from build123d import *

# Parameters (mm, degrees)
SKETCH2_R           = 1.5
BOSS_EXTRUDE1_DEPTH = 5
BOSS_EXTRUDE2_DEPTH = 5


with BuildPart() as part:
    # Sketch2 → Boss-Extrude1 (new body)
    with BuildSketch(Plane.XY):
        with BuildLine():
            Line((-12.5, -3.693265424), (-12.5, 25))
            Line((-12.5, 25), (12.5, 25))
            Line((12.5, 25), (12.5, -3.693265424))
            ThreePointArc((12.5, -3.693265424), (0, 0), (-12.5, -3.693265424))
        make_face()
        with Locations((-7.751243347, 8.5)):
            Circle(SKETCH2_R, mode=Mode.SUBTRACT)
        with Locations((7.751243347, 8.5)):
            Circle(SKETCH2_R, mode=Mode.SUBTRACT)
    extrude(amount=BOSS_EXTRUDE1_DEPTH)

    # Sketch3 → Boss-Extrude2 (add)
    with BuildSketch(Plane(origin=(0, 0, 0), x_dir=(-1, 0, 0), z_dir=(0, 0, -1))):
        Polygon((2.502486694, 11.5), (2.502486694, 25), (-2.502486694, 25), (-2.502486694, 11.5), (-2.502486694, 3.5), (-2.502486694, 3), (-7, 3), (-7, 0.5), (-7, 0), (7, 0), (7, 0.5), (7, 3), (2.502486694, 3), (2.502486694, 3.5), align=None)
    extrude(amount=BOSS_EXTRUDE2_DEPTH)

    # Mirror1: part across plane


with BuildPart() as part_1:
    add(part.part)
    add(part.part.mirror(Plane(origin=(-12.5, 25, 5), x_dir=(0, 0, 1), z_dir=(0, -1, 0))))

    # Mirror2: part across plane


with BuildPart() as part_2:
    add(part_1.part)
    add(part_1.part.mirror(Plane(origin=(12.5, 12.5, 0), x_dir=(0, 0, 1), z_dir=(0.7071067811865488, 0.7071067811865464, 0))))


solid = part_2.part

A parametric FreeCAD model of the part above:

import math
import FreeCAD as App
import Part
import Sketcher
from FreeCAD import Vector
Q = App.Units.Quantity


def add_polygon(sketch, points):
    """Adds a closed chain of lines whose ends are joined by coincident constraints."""
    first, n = sketch.GeometryCount, len(points)
    for a, b in zip(points, points[1:] + points[:1]):
        sketch.addGeometry(Part.LineSegment(App.Vector(*a, 0), App.Vector(*b, 0)), False)
    for i in range(n):
        sketch.addConstraint(Sketcher.Constraint("Coincident", first + i, 2, first + (i + 1) % n, 1))

doc = App.newDocument("Part")
params = doc.addObject("Spreadsheet::Sheet", "Params")
for row, (alias, value) in enumerate([
    ("sketch1_diameter", "3 mm"),
    ("sketch1_radius", "23 mm"),
    ("sketch1_width", "25 mm"),
    ("pad1_length", "5 mm"),
    ("sketch2_width", "14 mm"),
    ("sketch2_height", "22 mm"),
    ("sketch2_height2", "3 mm"),
    ("pad2_length", "5 mm"),
], start=1):
    params.set(f"A{row}", alias)
    params.set(f"B{row}", "=" + value)
    params.setAlias(f"B{row}", alias)

body = doc.addObject("PartDesign::Body", "Body")

# Sketch on XY plane
sketch1 = body.newObject("Sketcher::SketchObject", "Sketch")
sketch1.AttachmentSupport = (doc.getObject("XY_Plane"), [""])
sketch1.MapMode = "FlatFace"
sketch1.addGeometry([
    Part.LineSegment(Vector(-12.5, 25, 0), Vector(-12.5, -3.7, 0)),  # 0
    Part.ArcOfCircle(Part.Circle(Vector(0, -23, 0), Vector(0, 0, 1), 23), math.radians(57), math.radians(123)),  # 1
    Part.LineSegment(Vector(12.5, -3.7, 0), Vector(12.5, 25, 0)),  # 2
    Part.LineSegment(Vector(12.5, 25, 0), Vector(-12.5, 25, 0)),  # 3
    Part.Circle(Vector(7.8, 8.5, 0), Vector(0, 0, 1), 1.5),  # 4
    Part.Circle(Vector(-7.8, 8.5, 0), Vector(0, 0, 1), 1.5),  # 5
], False)
sketch1.addConstraint([
    Sketcher.Constraint("Coincident", 0, 2, 1, 2),
    Sketcher.Constraint("Coincident", 1, 1, 2, 1),
    Sketcher.Constraint("Coincident", 2, 2, 3, 1),
    Sketcher.Constraint("Coincident", 3, 2, 0, 1),
    Sketcher.Constraint("Vertical", 0),
    Sketcher.Constraint("Vertical", 2),
    Sketcher.Constraint("Horizontal", 3),
    Sketcher.Constraint("Equal", 4, 5),
    Sketcher.Constraint("Symmetric", 4, 3, 5, 3, -2),
    Sketcher.Constraint("Symmetric", 0, 2, 1, 1, -2),
    Sketcher.Constraint("Diameter", 4, Q("3 mm")),
    Sketcher.Constraint("Radius", 1, Q("23 mm")),
    Sketcher.Constraint("DistanceX", 3, 2, 3, 1, Q("25 mm")),
    Sketcher.Constraint("DistanceY", 1, 3, -1, 1, Q("23 mm")),
    Sketcher.Constraint("DistanceY", -1, 1, 2, 2, Q("25 mm")),
    Sketcher.Constraint("DistanceY", -1, 1, 4, 3, Q("8.5 mm")),
    Sketcher.Constraint("DistanceX", -1, 1, 4, 3, Q("7.751243 mm")),
])
sketch1.setExpression("Constraints[10]", "Params.sketch1_diameter")
sketch1.setExpression("Constraints[11]", "Params.sketch1_radius")
sketch1.setExpression("Constraints[12]", "Params.sketch1_width")
pad1 = body.newObject("PartDesign::Pad", "Pad")
pad1.Profile = sketch1
pad1.setExpression("Length", "Params.pad1_length")

# Sketch on XY plane
sketch2 = body.newObject("Sketcher::SketchObject", "Sketch001")
sketch2.AttachmentSupport = (doc.getObject("XY_Plane"), [""])
sketch2.MapMode = "FlatFace"
add_polygon(sketch2, [(-2.5, 25), (2.5, 25), (2.5, 3), (7, 3), (7, 0), (-7, 0), (-7, 3), (-2.5, 3)])  # lines 0-7
sketch2.addConstraint([
    Sketcher.Constraint("Horizontal", 0),
    Sketcher.Constraint("Vertical", 1),
    Sketcher.Constraint("Horizontal", 2),
    Sketcher.Constraint("Vertical", 3),
    Sketcher.Constraint("Horizontal", 4),
    Sketcher.Constraint("Vertical", 5),
    Sketcher.Constraint("Horizontal", 6),
    Sketcher.Constraint("Vertical", 7),
    Sketcher.Constraint("Symmetric", 3, 2, 4, 2, -1, 1),
    Sketcher.Constraint("Symmetric", 1, 2, 6, 2, -2),
    Sketcher.Constraint("DistanceX", 4, 2, 4, 1, Q("14 mm")),
    Sketcher.Constraint("DistanceY", 1, 2, 1, 1, Q("22 mm")),
    Sketcher.Constraint("DistanceY", 3, 2, 3, 1, Q("3 mm")),
    Sketcher.Constraint("DistanceX", 0, 1, 0, 2, Q("5.004973 mm")),
])
sketch2.setExpression("Constraints[18]", "Params.sketch2_width")
sketch2.setExpression("Constraints[19]", "Params.sketch2_height")
sketch2.setExpression("Constraints[20]", "Params.sketch2_height2")
pad2 = body.newObject("PartDesign::Pad", "Pad001")
pad2.Profile = sketch2
pad2.setExpression("Length", "Params.pad2_length")
pad2.Reversed = True
body2 = doc.addObject("PartDesign::Body", "Body001")
doc.recompute()

body2.BaseFeature = body
doc.recompute()

mirroring = doc.addObject("Part::Mirroring", "Mirroring")
mirroring.Source = body
mirroring.Base = Vector(-12.5, 25, 5)
mirroring.Normal = Vector(0, -1, 0)
body3 = doc.addObject("PartDesign::Body", "Body002")
body3.BaseFeature = mirroring
boolean = body2.newObject("PartDesign::Boolean", "Boolean")
boolean.Type = "Fuse"
boolean.addObjects([body3])
doc.recompute()
body4 = doc.addObject("PartDesign::Body", "Body003")
doc.recompute()

body4.BaseFeature = body2
doc.recompute()

mirroring2 = doc.addObject("Part::Mirroring", "Mirroring001")
mirroring2.Source = body2
mirroring2.Base = Vector(12.5, 12.5, 0)
mirroring2.Normal = Vector(0.707106781, 0.707106781, 0)
body5 = doc.addObject("PartDesign::Body", "Body004")
body5.BaseFeature = mirroring2
boolean2 = body4.newObject("PartDesign::Boolean", "Boolean001")
boolean2.Type = "Fuse"
boolean2.addObjects([body5])
doc.recompute()
mirroring.Visibility = False
mirroring2.Visibility = False

doc.recompute()
